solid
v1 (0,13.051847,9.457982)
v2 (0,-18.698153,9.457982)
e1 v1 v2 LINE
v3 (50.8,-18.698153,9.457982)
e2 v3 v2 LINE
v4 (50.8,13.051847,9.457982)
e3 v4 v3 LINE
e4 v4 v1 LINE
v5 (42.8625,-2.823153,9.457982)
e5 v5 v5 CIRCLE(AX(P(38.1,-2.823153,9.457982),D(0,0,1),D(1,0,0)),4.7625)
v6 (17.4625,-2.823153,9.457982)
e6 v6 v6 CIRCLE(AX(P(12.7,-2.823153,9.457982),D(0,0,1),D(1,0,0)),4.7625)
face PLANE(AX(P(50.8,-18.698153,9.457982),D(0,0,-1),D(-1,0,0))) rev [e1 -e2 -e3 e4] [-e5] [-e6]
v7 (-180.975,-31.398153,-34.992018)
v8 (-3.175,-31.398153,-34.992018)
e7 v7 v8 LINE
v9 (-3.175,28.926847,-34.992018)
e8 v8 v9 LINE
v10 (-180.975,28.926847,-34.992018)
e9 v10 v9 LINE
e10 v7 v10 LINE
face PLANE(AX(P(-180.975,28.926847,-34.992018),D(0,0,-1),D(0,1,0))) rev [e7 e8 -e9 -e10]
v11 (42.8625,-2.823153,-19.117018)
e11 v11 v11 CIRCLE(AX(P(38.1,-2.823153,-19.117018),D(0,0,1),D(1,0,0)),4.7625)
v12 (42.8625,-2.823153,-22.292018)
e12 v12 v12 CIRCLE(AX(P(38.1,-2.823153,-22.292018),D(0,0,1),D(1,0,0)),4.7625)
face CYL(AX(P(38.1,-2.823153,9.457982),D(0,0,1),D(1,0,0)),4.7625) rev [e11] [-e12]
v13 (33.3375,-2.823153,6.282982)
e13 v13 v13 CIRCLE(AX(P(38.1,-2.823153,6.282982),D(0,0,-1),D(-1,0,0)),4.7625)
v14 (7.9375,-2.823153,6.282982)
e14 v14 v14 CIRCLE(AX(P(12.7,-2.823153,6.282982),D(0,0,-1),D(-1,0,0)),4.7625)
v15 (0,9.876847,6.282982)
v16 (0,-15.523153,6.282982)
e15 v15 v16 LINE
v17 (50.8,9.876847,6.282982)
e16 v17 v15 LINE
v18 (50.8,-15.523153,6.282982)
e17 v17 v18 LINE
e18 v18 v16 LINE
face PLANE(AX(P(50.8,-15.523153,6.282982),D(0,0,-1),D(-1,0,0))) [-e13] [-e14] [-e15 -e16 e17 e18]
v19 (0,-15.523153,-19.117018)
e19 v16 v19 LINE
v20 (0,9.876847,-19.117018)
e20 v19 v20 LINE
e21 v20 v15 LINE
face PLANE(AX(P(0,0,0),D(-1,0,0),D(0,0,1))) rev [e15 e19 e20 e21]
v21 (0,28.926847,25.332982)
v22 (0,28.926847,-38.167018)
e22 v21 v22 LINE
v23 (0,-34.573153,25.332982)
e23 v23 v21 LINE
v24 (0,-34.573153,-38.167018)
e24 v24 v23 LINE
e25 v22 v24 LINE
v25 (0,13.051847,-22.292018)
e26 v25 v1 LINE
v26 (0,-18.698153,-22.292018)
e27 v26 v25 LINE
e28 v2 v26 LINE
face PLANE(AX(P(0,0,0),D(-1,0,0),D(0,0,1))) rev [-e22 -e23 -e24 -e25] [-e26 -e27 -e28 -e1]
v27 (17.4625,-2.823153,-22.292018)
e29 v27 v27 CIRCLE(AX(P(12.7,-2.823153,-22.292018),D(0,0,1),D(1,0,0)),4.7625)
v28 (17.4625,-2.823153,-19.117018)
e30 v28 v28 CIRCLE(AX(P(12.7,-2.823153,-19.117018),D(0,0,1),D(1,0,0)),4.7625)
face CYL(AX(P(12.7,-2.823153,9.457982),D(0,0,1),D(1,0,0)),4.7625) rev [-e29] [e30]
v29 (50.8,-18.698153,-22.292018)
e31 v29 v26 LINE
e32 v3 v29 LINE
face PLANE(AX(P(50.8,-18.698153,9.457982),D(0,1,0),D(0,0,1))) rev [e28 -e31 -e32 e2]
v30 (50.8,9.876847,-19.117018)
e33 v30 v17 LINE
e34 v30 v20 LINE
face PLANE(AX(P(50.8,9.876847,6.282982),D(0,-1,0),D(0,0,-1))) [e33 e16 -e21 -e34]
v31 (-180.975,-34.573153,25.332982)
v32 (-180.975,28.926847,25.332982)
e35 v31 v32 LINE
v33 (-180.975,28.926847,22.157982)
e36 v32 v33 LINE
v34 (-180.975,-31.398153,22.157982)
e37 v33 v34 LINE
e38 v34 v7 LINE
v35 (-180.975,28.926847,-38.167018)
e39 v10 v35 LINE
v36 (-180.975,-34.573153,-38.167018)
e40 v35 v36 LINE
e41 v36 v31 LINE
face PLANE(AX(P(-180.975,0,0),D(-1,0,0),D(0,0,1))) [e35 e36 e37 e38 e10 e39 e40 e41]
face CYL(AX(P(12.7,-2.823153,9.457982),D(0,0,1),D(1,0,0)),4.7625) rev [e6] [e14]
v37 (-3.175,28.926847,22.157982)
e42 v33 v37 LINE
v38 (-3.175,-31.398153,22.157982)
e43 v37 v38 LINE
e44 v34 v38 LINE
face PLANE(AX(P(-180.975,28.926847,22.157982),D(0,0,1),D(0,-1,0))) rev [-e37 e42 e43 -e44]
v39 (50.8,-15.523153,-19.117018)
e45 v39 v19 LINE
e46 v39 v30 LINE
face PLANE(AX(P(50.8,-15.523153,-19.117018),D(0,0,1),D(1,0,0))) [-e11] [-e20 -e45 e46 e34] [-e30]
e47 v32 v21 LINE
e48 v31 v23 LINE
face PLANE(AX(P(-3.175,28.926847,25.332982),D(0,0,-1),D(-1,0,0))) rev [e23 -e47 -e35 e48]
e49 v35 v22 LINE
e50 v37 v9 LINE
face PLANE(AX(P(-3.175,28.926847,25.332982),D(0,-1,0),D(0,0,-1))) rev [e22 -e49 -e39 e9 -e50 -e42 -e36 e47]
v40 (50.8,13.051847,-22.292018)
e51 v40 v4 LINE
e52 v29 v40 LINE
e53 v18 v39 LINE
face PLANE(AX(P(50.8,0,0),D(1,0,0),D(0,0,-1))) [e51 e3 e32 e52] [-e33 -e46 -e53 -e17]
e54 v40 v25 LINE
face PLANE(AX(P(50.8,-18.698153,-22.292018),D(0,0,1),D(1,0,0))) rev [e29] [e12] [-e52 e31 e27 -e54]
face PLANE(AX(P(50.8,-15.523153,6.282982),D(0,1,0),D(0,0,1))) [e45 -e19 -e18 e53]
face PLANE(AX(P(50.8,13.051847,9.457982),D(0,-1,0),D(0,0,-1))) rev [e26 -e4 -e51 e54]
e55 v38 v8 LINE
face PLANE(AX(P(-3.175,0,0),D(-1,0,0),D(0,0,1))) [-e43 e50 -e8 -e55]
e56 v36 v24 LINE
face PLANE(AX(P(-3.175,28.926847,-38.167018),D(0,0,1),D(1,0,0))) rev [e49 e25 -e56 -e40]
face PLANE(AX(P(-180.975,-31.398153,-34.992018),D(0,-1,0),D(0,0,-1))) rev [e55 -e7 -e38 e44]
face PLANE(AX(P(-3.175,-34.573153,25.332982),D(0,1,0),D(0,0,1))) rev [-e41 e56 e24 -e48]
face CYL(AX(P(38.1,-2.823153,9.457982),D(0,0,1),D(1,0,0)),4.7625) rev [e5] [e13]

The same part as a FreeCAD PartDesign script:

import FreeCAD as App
import Part
import Sketcher

V = App.Vector
Q = App.Units.Quantity


def add_polygon(sketch, points):
    """Adds a closed chain of lines whose ends are joined by coincident constraints."""
    first, n = sketch.GeometryCount, len(points)
    for a, b in zip(points, points[1:] + points[:1]):
        sketch.addGeometry(Part.LineSegment(App.Vector(*a, 0), App.Vector(*b, 0)), False)
    for i in range(n):
        sketch.addConstraint(Sketcher.Constraint("Coincident", first + i, 2, first + (i + 1) % n, 1))

doc = App.newDocument("Part")
body = doc.addObject("PartDesign::Body", "Body")

# Sketch on YZ plane
sketch1 = body.newObject("Sketcher::SketchObject", "Sketch")
sketch1.AttachmentSupport = (doc.getObject("YZ_Plane"), [""])
sketch1.MapMode = "FlatFace"
add_polygon(sketch1, [(-18.698153, 9.457982), (-18.698153, -22.292018), (13.051847, -22.292018), (13.051847, 9.457982)])  # lines 0-3
add_polygon(sketch1, [(9.876847, -19.117018), (-15.523153, -19.117018), (-15.523153, 6.282982), (9.876847, 6.282982)])  # lines 4-7
sketch1.addConstraint(Sketcher.Constraint("Vertical", 0))
sketch1.addConstraint(Sketcher.Constraint("Horizontal", 1))
sketch1.addConstraint(Sketcher.Constraint("Vertical", 2))
sketch1.addConstraint(Sketcher.Constraint("Horizontal", 3))
sketch1.addConstraint(Sketcher.Constraint("Horizontal", 4))
sketch1.addConstraint(Sketcher.Constraint("Vertical", 5))
sketch1.addConstraint(Sketcher.Constraint("Horizontal", 6))
sketch1.addConstraint(Sketcher.Constraint("Vertical", 7))
sketch1.addConstraint(Sketcher.Constraint("Equal", 3, 0))
sketch1.addConstraint(Sketcher.Constraint("Equal", 6, 5))
sketch1.addConstraint(Sketcher.Constraint("DistanceX", 4, 2, 4, 1, Q("1 in")))
sketch1.addConstraint(Sketcher.Constraint("DistanceX", 1, 1, 1, 2, Q("1.25 in")))
sketch1.addConstraint(Sketcher.Constraint("DistanceX", 0, 2, 4, 2, Q("0.125 in")))
sketch1.addConstraint(Sketcher.Constraint("DistanceY", 0, 2, 4, 2, Q("0.125 in")))
sketch1.addConstraint(Sketcher.Constraint("DistanceY", 0, 2, -1, 1, Q("22.292018 mm")))
sketch1.addConstraint(Sketcher.Constraint("DistanceX", 0, 2, -1, 1, Q("18.698153 mm")))
pad1 = body.newObject("PartDesign::Pad", "Pad")
pad1.Profile = sketch1
pad1.Length = Q("2 in")

# Sketch on YZ plane
sketch2 = body.newObject("Sketcher::SketchObject", "Sketch001")
sketch2.AttachmentSupport = (doc.getObject("YZ_Plane"), [""])
sketch2.MapMode = "FlatFace"
add_polygon(sketch2, [(28.926847, 25.332982), (28.926847, -38.167018), (-34.573153, -38.167018), (-34.573153, 25.332982)])  # lines 0-3
sketch2.addConstraint(Sketcher.Constraint("Vertical", 0))
sketch2.addConstraint(Sketcher.Constraint("Horizontal", 1))
sketch2.addConstraint(Sketcher.Constraint("Vertical", 2))
sketch2.addConstraint(Sketcher.Constraint("Horizontal", 3))
sketch2.addConstraint(Sketcher.Constraint("Equal", 3, 0))
sketch2.addConstraint(Sketcher.Constraint("DistanceX", 1, 2, 1, 1, Q("2.5 in")))
sketch2.addConstraint(Sketcher.Constraint("DistanceY", 0, 2, -1, 1, Q("38.167018 mm")))
sketch2.addConstraint(Sketcher.Constraint("DistanceX", -1, 1, 0, 2, Q("28.926847 mm")))
pad2 = body.newObject("PartDesign::Pad", "Pad001")
pad2.Profile = sketch2
pad2.Length = Q("0.125 in")
pad2.Reversed = True

# Sketch on XY plane
sketch3 = body.newObject("Sketcher::SketchObject", "Sketch002")
sketch3.AttachmentSupport = (doc.getObject("XY_Plane"), [""])
sketch3.MapMode = "FlatFace"
sketch3.AttachmentOffset = App.Placement(V(0, 0, 9.457982), App.Rotation())
sketch3.addGeometry(Part.Circle(V(38.1, -2.823153, 0), V(0, 0, 1), 4.7625), False)
sketch3.addGeometry(Part.Circle(V(12.7, -2.823153, 0), V(0, 0, 1), 4.7625), False)
sketch3.addConstraint(Sketcher.Constraint("Equal", 0, 1))
sketch3.addConstraint(Sketcher.Constraint("Horizontal", 0, 3, 1, 3))
sketch3.addConstraint(Sketcher.Constraint("Diameter", 0, Q("0.375 in")))
sketch3.addConstraint(Sketcher.Constraint("DistanceX", 1, 3, 0, 3, Q("1 in")))
sketch3.addConstraint(Sketcher.Constraint("DistanceX", -1, 1, 0, 3, Q("1.5 in")))
sketch3.addConstraint(Sketcher.Constraint("DistanceY", 0, 3, -1, 1, Q("2.823153 mm")))
doc.recompute()
hole = body.newObject("PartDesign::Hole", "Hole")
hole.Profile = sketch3
hole.ThreadType = "None"
hole.Diameter = Q("0.375 in")
hole.DepthType = "Dimension"
hole.Depth = Q("3 in")
hole.DrillPoint = "Flat"

# Sketch on YZ plane
sketch4 = body.newObject("Sketcher::SketchObject", "Sketch003")
sketch4.AttachmentSupport = (doc.getObject("YZ_Plane"), [""])
sketch4.MapMode = "FlatFace"
sketch4.AttachmentOffset = App.Placement(V(0, 0, -0.125 * 25.4), App.Rotation())
add_polygon(sketch4, [(28.926847, -34.992018), (28.926847, -38.167018), (-34.573153, -38.167018), (-34.573153, 25.332982), (28.926847, 25.332982), (28.926847, 22.157982), (-31.398153, 22.157982), (-31.398153, -34.992018)])  # lines 0-7
sketch4.addConstraint(Sketcher.Constraint("Vertical", 0))
sketch4.addConstraint(Sketcher.Constraint("Horizontal", 1))
sketch4.addConstraint(Sketcher.Constraint("Vertical", 2))
sketch4.addConstraint(Sketcher.Constraint("Horizontal", 3))
sketch4.addConstraint(Sketcher.Constraint("Vertical", 4))
sketch4.addConstraint(Sketcher.Constraint("Horizontal", 5))
sketch4.addConstraint(Sketcher.Constraint("Vertical", 6))
sketch4.addConstraint(Sketcher.Constraint("Horizontal", 7))
sketch4.addConstraint(Sketcher.Constraint("Vertical", 0, 2, 3, 2))
sketch4.addConstraint(Sketcher.Constraint("Equal", 3, 2))
sketch4.addConstraint(Sketcher.Constraint("Equal", 0, 4))
sketch4.addConstraint(Sketcher.Constraint("DistanceX", 1, 2, 1, 1, Q("2.5 in")))
sketch4.addConstraint(Sketcher.Constraint("DistanceY", 6, 2, 6, 1, Q("2.25 in")))
sketch4.addConstraint(Sketcher.Constraint("DistanceX", 5, 2, 5, 1, Q("2.375 in")))
sketch4.addConstraint(Sketcher.Constraint("DistanceY", 0, 2, -1, 1, Q("38.167018 mm")))
sketch4.addConstraint(Sketcher.Constraint("DistanceX", -1, 1, 0, 2, Q("28.926847 mm")))
pad3 = body.newObject("PartDesign::Pad", "Pad002")
pad3.Profile = sketch4
pad3.Length = Q("7 in")
pad3.Reversed = True

doc.recompute()
